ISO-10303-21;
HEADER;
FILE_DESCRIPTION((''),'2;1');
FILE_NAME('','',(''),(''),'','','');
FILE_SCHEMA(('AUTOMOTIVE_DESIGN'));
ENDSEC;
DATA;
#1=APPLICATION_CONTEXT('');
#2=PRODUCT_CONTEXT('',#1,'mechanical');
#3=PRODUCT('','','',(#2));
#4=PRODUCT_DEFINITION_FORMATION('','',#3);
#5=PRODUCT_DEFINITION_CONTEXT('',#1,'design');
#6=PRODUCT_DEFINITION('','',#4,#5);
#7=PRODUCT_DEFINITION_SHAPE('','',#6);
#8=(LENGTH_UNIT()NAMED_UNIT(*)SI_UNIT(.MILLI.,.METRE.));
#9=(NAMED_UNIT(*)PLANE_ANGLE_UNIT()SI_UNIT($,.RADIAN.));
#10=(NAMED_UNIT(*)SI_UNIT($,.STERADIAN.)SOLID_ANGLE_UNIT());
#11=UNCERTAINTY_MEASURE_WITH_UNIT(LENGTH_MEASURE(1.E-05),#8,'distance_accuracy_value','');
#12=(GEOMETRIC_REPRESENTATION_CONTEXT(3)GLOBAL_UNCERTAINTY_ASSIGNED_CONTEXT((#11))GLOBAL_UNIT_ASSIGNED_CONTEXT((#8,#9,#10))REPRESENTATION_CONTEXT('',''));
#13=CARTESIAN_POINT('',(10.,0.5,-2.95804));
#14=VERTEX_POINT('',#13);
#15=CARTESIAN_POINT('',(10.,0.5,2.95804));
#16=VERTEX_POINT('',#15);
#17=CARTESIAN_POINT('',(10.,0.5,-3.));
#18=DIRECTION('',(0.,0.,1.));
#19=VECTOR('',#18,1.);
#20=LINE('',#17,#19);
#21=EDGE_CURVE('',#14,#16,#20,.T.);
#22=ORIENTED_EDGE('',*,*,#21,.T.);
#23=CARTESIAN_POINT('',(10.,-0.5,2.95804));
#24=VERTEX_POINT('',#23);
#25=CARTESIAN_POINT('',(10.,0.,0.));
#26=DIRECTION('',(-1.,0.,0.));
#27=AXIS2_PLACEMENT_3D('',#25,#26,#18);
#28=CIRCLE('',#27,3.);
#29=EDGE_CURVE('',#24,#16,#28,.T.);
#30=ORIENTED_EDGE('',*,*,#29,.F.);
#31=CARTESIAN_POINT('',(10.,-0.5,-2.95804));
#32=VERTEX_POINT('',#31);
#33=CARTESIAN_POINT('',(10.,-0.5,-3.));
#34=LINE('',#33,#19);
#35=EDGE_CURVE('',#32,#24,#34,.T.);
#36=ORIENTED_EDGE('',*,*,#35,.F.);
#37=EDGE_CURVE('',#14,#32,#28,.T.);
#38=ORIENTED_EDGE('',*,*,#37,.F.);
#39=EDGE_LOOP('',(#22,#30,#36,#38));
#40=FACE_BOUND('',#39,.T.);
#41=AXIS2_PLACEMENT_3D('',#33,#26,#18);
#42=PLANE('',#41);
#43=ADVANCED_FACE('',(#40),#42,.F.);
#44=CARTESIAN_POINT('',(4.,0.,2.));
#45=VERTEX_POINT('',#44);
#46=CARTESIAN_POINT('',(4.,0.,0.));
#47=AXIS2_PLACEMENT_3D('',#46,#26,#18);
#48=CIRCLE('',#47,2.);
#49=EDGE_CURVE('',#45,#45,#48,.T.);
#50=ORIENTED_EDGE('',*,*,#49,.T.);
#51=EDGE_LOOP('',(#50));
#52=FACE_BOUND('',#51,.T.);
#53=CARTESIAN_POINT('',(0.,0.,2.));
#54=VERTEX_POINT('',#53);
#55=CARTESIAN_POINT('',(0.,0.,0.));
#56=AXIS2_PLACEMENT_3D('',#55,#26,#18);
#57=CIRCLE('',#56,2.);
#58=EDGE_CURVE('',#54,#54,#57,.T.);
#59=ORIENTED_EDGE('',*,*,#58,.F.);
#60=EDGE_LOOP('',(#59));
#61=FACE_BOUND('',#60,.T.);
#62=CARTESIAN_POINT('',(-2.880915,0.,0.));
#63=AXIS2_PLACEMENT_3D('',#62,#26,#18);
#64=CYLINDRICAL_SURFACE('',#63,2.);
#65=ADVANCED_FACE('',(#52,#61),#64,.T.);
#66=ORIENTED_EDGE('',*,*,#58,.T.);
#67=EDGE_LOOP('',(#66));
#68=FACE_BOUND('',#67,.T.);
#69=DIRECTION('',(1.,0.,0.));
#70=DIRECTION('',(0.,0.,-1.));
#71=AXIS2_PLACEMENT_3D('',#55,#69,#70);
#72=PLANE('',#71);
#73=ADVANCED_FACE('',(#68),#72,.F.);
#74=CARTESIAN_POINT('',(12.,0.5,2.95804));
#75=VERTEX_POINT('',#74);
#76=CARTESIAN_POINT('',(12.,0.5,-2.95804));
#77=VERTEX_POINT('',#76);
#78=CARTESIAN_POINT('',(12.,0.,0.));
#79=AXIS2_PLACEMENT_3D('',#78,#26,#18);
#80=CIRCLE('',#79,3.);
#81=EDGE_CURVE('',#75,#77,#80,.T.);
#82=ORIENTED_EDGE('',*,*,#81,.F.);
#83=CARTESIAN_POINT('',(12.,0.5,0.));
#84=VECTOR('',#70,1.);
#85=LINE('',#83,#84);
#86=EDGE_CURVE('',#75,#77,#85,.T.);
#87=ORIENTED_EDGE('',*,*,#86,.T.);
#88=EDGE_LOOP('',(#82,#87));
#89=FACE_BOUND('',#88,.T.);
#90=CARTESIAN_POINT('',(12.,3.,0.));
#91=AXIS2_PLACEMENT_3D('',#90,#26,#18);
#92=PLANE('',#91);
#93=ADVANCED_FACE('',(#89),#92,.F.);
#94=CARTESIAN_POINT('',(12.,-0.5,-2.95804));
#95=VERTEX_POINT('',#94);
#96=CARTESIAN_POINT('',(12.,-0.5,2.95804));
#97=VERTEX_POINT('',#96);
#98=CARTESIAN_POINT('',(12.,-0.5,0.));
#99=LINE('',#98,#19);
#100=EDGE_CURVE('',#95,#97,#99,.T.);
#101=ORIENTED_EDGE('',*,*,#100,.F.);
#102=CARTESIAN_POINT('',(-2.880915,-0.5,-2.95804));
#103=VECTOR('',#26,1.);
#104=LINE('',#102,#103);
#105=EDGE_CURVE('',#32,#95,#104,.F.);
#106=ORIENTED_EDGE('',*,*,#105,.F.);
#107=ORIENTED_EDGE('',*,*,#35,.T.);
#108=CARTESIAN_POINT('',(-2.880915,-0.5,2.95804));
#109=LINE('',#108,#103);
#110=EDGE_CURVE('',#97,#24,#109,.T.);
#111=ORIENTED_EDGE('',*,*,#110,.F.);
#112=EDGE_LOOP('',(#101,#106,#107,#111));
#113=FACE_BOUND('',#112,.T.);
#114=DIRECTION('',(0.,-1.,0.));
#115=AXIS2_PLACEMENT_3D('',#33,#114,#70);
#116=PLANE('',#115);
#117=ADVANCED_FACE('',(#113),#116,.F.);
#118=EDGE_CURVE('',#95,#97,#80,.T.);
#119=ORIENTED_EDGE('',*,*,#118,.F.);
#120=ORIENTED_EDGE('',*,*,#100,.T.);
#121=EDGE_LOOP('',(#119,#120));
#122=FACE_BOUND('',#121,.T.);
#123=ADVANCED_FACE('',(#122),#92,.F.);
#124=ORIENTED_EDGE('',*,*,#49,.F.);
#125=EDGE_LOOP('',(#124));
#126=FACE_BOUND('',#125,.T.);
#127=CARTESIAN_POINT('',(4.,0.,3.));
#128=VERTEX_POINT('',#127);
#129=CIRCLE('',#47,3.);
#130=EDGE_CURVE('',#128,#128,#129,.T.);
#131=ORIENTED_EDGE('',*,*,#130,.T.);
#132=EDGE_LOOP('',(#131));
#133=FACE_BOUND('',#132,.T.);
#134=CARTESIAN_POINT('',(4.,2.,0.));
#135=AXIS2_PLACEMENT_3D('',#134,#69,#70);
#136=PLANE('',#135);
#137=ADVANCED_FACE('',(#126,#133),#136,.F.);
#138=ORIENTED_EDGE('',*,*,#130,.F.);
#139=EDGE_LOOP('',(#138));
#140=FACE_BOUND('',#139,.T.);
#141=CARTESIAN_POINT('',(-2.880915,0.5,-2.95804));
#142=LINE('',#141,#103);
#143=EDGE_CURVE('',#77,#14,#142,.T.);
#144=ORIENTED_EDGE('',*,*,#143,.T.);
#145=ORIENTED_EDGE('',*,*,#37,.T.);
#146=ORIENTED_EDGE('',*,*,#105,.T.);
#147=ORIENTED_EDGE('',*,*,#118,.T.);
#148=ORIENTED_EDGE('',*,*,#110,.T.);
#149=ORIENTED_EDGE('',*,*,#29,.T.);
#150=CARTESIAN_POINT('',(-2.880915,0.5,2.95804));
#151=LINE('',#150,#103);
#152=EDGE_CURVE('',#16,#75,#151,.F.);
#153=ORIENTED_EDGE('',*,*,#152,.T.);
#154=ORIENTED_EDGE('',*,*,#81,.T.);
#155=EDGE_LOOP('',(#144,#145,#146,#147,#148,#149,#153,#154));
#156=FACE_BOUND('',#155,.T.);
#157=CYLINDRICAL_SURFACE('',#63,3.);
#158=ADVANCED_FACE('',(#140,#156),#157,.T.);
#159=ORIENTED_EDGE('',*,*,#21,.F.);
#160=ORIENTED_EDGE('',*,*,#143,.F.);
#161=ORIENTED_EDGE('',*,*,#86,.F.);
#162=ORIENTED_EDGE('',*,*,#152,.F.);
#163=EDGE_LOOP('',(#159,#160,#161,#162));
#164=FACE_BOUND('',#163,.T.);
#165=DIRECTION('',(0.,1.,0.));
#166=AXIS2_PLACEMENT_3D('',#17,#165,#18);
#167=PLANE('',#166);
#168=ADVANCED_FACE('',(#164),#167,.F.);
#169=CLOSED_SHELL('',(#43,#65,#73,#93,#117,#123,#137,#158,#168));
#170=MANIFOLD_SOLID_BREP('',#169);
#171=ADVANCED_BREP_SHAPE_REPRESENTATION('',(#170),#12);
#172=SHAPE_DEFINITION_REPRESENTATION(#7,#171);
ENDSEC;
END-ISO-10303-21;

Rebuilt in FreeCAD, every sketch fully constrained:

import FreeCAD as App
import Part
import Sketcher

V = App.Vector
Q = App.Units.Quantity


def add_polygon(sketch, points):
    """Adds a closed chain of lines whose ends are joined by coincident constraints."""
    first, n = sketch.GeometryCount, len(points)
    for a, b in zip(points, points[1:] + points[:1]):
        sketch.addGeometry(Part.LineSegment(App.Vector(*a, 0), App.Vector(*b, 0)), False)
    for i in range(n):
        sketch.addConstraint(Sketcher.Constraint("Coincident", first + i, 2, first + (i + 1) % n, 1))

doc = App.newDocument("Part")
body = doc.addObject("PartDesign::Body", "Body")

# Sketch on XY plane
sketch1 = doc.addObject("Sketcher::SketchObject", "Sketch")
body.addObject(sketch1)
sketch1.AttachmentSupport = (doc.XY_Plane, [""])
sketch1.MapMode = "FlatFace"
add_polygon(sketch1, [(0, 2), (0, 0), (12, 0), (12, 3), (4, 3), (4, 2)])  # lines 0-5
sketch1.addConstraint([
    Sketcher.Constraint("Vertical", 0),
    Sketcher.Constraint("Horizontal", 1),
    Sketcher.Constraint("Vertical", 2),
    Sketcher.Constraint("Horizontal", 3),
    Sketcher.Constraint("Vertical", 4),
    Sketcher.Constraint("Horizontal", 5),
    Sketcher.Constraint("Coincident", 0, 2, -1, 1),
    Sketcher.Constraint("DistanceX", 1, 1, 1, 2, Q("12 mm")),
    Sketcher.Constraint("DistanceX", 3, 2, 3, 1, Q("8 mm")),
    Sketcher.Constraint("DistanceY", 0, 2, 0, 1, Q("2 mm")),
    Sketcher.Constraint("DistanceY", 2, 1, 2, 2, Q("3 mm")),
])
revolution = doc.addObject("PartDesign::Revolution", "Revolution")
body.addObject(revolution)
revolution.Profile = sketch1
revolution.ReferenceAxis = (sketch1, ["H_Axis"])
revolution.Angle = 360

# Sketch on XY plane
sketch2 = doc.addObject("Sketcher::SketchObject", "Sketch001")
body.addObject(sketch2)
sketch2.AttachmentSupport = (doc.XY_Plane, [""])
sketch2.MapMode = "FlatFace"
add_polygon(sketch2, [(10, 0.5), (10, -0.5), (12, -0.5), (12, 0.5)])  # lines 0-3
sketch2.addConstraint([
    Sketcher.Constraint("Vertical", 0),
    Sketcher.Constraint("Horizontal", 1),
    Sketcher.Constraint("Vertical", 2),
    Sketcher.Constraint("Horizontal", 3),
    Sketcher.Constraint("DistanceX", 1, 1, 1, 2, Q("2 mm")),
    Sketcher.Constraint("DistanceY", 0, 2, 0, 1, Q("1 mm")),
    Sketcher.Constraint("DistanceX", -1, 1, 0, 2, Q("10 mm")),
    Sketcher.Constraint("DistanceY", 0, 2, -1, 1, Q("0.5 mm")),
])
pocket1 = doc.addObject("PartDesign::Pocket", "Pocket")
body.addObject(pocket1)
pocket1.Profile = sketch2
pocket1.Type = "ThroughAll"
pocket1.Midplane = True

doc.recompute()
